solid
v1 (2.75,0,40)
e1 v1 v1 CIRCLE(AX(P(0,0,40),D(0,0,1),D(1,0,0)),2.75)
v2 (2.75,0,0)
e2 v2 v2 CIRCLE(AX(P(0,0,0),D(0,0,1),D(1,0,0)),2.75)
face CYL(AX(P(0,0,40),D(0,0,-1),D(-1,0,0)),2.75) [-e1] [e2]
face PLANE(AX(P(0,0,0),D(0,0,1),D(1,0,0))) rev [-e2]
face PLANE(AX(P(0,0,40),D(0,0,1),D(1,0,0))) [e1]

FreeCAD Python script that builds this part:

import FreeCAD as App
import Part
import Sketcher

doc = App.newDocument("Part")
body = doc.addObject("PartDesign::Body", "Body")

sketch1 = doc.addObject("Sketcher::SketchObject", "Sketch")
body.addObject(sketch1)
sketch1.AttachmentSupport = (doc.XY_Plane, [""])
sketch1.MapMode = "FlatFace"
sketch1.addGeometry(Part.Circle(App.Vector(0, 0, 0), App.Vector(0, 0, 1), 2.75), False)
sketch1.addConstraint([
    Sketcher.Constraint("Coincident", 0, 3, -1, 1),
    Sketcher.Constraint("Diameter", 0, 5.5),
])
pad1 = doc.addObject("PartDesign::Pad", "Pad")
body.addObject(pad1)
pad1.Profile = sketch1
pad1.Length = 40

doc.recompute()
